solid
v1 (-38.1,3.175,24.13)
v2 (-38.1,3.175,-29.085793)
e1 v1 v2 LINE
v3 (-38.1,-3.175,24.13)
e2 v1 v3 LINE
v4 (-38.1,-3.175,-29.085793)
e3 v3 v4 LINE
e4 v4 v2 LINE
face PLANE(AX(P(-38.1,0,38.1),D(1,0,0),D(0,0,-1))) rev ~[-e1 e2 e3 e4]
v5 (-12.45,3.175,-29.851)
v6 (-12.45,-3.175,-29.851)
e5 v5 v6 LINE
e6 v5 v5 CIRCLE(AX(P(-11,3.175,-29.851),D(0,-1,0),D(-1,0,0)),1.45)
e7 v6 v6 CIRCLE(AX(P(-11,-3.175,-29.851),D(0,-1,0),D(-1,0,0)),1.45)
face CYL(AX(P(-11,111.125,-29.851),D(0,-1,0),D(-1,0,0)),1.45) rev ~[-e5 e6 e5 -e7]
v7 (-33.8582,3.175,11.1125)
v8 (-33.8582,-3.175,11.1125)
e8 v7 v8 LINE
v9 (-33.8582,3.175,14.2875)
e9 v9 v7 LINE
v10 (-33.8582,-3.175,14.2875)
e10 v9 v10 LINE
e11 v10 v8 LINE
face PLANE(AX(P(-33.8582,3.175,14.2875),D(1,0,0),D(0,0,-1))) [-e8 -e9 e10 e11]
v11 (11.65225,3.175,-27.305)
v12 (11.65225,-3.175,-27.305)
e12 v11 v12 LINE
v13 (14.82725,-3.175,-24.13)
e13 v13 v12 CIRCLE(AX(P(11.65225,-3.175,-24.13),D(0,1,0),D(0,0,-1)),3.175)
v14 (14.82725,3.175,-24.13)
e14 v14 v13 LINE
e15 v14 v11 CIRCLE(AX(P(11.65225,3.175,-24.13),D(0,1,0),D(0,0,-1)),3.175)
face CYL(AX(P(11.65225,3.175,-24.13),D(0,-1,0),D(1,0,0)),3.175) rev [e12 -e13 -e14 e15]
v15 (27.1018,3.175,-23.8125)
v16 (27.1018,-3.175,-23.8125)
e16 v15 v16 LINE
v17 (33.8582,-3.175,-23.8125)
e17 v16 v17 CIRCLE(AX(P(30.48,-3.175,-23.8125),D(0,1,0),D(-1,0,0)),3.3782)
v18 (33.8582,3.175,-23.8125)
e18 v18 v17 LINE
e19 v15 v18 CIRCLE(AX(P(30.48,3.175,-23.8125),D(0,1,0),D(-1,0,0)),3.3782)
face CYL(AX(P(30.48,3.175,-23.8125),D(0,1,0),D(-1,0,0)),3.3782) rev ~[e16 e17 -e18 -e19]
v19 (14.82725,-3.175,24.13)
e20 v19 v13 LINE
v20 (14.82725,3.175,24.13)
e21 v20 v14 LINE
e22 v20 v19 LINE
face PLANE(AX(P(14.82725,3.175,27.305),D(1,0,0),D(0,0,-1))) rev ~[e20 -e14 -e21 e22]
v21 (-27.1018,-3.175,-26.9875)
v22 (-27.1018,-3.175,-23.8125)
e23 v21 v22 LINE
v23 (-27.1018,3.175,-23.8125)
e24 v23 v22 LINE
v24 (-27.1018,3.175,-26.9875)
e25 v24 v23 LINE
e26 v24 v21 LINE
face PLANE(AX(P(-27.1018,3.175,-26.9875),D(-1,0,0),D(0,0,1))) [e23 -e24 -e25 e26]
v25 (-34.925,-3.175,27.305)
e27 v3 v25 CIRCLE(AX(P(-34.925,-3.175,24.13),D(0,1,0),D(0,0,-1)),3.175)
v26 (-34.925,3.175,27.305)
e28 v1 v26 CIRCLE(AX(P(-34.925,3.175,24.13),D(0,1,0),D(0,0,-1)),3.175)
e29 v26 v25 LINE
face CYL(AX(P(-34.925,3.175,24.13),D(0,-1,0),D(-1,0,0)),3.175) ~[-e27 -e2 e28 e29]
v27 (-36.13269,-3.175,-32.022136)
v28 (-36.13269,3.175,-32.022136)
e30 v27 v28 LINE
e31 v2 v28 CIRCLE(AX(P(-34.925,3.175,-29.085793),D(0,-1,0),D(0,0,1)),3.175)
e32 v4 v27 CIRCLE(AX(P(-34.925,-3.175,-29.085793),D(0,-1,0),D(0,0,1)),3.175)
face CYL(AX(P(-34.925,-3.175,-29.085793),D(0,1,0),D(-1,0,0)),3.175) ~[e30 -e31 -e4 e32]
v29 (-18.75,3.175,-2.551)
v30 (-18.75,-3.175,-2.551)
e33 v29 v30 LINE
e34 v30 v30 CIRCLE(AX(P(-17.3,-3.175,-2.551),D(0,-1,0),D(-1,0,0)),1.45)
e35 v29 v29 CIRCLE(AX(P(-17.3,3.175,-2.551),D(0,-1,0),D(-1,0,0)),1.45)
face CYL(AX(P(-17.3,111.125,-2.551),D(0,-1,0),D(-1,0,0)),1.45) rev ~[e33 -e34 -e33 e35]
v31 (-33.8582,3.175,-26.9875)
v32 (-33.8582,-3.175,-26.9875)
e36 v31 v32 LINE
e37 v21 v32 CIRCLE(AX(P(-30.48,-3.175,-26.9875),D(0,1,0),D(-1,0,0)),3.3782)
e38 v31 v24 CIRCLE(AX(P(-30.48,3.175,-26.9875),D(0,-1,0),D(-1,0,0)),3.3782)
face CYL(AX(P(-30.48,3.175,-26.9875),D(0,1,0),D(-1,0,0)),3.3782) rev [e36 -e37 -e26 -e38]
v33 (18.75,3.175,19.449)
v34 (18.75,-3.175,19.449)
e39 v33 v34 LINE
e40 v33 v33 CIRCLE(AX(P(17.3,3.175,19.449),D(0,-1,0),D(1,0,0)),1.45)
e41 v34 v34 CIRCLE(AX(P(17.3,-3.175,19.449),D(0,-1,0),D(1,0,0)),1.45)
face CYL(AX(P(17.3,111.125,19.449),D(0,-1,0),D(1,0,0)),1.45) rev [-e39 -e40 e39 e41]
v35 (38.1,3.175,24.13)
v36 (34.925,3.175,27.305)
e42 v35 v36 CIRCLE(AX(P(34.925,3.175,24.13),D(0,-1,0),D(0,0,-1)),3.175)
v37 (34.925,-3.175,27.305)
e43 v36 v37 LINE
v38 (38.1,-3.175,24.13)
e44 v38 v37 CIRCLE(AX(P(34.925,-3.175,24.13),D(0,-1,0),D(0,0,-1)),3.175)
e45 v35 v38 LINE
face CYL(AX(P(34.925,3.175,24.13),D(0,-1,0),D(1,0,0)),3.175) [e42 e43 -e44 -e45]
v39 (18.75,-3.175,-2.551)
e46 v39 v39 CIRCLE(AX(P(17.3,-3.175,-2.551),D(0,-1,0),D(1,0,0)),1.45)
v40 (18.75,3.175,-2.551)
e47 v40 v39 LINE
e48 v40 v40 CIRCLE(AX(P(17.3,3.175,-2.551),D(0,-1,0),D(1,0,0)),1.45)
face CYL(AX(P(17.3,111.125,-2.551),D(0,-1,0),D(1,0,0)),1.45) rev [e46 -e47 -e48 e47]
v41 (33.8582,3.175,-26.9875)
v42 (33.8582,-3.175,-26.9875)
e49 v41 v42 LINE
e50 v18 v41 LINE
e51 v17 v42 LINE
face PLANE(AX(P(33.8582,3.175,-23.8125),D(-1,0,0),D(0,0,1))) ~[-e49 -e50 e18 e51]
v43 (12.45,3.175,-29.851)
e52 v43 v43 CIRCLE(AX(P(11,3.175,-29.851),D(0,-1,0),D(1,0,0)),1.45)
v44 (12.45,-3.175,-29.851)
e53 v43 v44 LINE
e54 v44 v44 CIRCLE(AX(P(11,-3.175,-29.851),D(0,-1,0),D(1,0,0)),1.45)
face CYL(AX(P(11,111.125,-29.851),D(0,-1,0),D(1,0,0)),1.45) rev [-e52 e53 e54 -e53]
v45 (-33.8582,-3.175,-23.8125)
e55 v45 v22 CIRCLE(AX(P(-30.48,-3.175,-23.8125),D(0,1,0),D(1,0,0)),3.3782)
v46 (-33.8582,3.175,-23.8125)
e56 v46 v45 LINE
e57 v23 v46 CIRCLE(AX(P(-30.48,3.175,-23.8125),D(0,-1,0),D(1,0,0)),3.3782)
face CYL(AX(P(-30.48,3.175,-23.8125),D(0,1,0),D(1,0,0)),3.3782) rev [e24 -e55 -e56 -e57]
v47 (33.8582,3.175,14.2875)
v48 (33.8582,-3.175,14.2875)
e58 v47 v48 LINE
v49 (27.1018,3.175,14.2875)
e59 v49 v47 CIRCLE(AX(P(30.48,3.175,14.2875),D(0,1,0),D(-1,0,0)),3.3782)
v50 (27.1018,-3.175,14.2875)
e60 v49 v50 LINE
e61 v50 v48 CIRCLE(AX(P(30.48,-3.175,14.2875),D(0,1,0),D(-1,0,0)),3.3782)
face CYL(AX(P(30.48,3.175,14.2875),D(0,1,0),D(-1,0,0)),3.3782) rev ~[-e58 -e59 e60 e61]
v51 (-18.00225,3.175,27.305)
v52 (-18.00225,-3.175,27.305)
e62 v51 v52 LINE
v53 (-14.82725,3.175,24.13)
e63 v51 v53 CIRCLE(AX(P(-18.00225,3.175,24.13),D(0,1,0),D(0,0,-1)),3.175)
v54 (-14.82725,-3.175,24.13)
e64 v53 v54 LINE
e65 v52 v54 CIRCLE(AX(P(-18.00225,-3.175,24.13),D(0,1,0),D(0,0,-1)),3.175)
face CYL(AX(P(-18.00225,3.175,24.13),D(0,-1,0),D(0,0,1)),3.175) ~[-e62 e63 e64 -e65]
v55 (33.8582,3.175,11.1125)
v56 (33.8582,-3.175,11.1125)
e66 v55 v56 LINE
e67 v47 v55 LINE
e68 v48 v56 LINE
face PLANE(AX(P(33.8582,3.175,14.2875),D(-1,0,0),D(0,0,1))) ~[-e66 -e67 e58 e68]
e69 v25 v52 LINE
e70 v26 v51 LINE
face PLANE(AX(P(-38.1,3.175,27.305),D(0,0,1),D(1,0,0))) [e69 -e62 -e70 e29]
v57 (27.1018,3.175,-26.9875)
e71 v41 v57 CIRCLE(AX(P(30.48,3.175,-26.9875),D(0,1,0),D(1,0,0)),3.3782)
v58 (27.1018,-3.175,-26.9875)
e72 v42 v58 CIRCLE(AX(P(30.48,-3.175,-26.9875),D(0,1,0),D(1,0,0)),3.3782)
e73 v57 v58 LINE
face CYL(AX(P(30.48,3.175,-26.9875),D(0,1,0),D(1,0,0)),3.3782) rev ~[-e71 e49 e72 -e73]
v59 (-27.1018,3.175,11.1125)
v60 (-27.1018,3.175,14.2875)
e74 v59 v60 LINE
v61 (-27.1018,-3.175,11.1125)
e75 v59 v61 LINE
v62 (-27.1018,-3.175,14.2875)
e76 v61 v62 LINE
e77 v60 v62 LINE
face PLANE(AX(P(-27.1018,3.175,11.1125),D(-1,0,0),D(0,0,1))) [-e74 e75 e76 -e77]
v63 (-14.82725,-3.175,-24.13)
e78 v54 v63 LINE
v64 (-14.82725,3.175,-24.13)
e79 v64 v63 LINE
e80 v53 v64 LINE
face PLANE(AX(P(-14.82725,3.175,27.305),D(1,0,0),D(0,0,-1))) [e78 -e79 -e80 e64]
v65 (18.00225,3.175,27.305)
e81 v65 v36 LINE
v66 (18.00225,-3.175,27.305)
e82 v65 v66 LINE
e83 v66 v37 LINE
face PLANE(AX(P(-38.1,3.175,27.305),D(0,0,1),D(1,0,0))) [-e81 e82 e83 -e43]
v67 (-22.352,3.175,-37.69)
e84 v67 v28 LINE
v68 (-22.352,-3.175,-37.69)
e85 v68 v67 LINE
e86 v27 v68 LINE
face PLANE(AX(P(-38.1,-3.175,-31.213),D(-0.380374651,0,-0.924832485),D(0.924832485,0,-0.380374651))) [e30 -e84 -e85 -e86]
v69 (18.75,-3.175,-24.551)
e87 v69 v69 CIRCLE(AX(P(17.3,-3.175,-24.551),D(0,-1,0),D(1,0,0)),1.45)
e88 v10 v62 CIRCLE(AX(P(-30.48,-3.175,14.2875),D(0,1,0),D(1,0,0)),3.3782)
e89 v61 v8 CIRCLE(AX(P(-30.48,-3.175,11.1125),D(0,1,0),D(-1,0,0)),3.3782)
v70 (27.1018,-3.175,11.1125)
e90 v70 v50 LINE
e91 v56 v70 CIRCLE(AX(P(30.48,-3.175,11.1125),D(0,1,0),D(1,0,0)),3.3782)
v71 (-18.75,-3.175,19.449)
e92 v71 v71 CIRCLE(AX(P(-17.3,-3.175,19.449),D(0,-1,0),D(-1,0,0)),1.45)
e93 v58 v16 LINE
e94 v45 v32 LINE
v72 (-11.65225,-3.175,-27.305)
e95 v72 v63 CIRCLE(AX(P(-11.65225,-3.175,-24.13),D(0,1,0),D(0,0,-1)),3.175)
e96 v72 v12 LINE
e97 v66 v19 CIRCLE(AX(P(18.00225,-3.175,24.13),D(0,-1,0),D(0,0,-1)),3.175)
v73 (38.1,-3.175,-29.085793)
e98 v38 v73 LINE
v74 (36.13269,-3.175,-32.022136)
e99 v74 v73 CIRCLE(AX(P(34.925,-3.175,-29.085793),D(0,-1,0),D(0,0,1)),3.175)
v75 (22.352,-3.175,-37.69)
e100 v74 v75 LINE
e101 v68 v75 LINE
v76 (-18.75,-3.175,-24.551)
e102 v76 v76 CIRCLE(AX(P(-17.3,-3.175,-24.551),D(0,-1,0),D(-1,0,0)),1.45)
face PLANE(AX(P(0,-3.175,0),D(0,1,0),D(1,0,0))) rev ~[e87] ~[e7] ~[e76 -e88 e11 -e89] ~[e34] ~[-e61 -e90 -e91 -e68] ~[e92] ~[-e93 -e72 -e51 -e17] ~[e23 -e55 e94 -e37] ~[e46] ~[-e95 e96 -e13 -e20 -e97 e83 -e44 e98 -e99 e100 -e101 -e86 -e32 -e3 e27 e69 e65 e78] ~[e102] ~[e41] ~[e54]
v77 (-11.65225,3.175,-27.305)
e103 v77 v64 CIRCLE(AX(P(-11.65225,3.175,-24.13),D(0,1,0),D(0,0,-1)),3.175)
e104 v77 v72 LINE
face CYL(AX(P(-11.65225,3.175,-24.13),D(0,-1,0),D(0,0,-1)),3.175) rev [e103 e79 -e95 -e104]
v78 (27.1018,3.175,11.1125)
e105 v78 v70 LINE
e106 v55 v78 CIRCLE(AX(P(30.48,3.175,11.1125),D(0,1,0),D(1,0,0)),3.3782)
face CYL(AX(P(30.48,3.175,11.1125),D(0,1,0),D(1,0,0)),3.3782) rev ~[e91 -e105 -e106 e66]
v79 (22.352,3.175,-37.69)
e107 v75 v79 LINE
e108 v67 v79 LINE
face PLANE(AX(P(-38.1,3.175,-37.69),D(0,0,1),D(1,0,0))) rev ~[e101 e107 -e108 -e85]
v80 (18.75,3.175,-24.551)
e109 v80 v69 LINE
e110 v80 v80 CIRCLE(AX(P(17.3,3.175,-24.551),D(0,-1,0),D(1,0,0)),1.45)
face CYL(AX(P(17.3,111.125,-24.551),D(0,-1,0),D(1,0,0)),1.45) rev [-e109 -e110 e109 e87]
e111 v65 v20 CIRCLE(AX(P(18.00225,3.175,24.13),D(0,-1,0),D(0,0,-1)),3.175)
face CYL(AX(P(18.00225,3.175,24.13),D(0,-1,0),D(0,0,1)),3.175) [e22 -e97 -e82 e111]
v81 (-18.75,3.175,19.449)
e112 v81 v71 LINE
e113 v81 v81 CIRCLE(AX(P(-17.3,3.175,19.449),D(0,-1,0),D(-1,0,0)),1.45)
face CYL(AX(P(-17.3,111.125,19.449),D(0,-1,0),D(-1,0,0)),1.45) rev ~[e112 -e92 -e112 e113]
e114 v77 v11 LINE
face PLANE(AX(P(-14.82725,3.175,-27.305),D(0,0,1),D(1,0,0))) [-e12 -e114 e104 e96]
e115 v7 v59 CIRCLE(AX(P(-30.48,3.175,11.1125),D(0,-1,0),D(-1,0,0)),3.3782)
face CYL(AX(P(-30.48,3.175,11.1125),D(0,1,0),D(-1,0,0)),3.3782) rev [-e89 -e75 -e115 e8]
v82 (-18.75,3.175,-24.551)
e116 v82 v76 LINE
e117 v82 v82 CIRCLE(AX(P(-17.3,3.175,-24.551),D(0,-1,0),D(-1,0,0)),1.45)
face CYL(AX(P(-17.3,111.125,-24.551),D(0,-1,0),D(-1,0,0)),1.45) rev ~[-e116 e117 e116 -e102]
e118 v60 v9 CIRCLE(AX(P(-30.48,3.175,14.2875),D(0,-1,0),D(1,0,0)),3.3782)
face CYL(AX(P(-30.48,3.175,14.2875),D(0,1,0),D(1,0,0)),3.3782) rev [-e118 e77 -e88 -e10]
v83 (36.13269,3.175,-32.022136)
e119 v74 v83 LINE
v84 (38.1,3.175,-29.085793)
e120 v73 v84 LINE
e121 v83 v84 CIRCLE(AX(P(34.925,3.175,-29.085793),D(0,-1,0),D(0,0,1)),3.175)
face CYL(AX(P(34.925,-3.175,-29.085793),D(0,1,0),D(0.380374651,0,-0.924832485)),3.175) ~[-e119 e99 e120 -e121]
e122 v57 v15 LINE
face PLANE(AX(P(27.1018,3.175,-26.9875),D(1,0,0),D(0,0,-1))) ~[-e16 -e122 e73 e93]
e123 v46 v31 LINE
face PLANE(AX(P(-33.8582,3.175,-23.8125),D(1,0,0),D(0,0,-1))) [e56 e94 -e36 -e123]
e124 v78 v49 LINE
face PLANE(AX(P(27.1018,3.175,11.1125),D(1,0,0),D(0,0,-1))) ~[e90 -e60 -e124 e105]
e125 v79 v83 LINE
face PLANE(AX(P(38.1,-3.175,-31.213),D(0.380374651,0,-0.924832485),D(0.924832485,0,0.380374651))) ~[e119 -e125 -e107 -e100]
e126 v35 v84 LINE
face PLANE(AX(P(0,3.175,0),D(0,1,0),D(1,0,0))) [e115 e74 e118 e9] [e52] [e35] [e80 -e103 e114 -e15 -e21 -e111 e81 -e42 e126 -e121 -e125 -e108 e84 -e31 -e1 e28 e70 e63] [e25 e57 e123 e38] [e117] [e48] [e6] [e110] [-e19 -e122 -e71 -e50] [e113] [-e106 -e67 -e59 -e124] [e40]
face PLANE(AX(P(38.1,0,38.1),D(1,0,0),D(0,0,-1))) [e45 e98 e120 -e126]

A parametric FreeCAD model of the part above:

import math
import FreeCAD as App
import Part
import Sketcher
Q = App.Units.Quantity


def edges_at(feature, points):
    """Names of the edges that pass closest to the given points."""
    edges = feature.Shape.Edges
    near = lambda p: min(range(len(edges)), key=lambda i: edges[i].distToShape(Part.Vertex(*p))[0])
    return sorted({f"Edge{near(p) + 1}" for p in points})


def add_polygon(sketch, points):
    """Adds a closed chain of lines whose ends are joined by coincident constraints."""
    first, n = sketch.GeometryCount, len(points)
    for a, b in zip(points, points[1:] + points[:1]):
        sketch.addGeometry(Part.LineSegment(App.Vector(*a, 0), App.Vector(*b, 0)), False)
    for i in range(n):
        sketch.addConstraint(Sketcher.Constraint("Coincident", first + i, 2, first + (i + 1) % n, 1))

doc = App.newDocument("Part")
body = doc.addObject("PartDesign::Body", "Body")

# Sketch on XZ plane
sketch1 = doc.addObject("Sketcher::SketchObject", "Sketch")
body.addObject(sketch1)
sketch1.AttachmentSupport = (doc.XZ_Plane, [""])
sketch1.MapMode = "FlatFace"
add_polygon(sketch1, [(-38, -38), (-38, 38), (38, 38), (38, -38)])  # lines 0-3
sketch1.addConstraint([
    Sketcher.Constraint("Vertical", 0),
    Sketcher.Constraint("Horizontal", 1),
    Sketcher.Constraint("Vertical", 2),
    Sketcher.Constraint("Horizontal", 3),
    Sketcher.Constraint("Symmetric", 0, 2, 2, 2, -1, 1),
    Sketcher.Constraint("Equal", 3, 0),
    Sketcher.Constraint("DistanceX", 1, 1, 1, 2, Q("3 in")),
])
pad1 = doc.addObject("PartDesign::Pad", "Pad")
body.addObject(pad1)
pad1.Profile = sketch1
pad1.Length = Q("0.25 in")
pad1.Midplane = True

# Sketch on XZ plane
sketch2 = doc.addObject("Sketcher::SketchObject", "Sketch001")
body.addObject(sketch2)
sketch2.AttachmentSupport = (doc.XZ_Plane, [""])
sketch2.MapMode = "FlatFace"
sketch2.AttachmentOffset = App.Placement(App.Vector(0, 0, -0.125 * 25.4), App.Rotation())
add_polygon(sketch2, [(-15, -27), (-15, 27), (15, 27), (15, -27)])  # lines 0-3
sketch2.addConstraint([
    Sketcher.Constraint("Vertical", 0),
    Sketcher.Constraint("Horizontal", 1),
    Sketcher.Constraint("Vertical", 2),
    Sketcher.Constraint("Horizontal", 3),
    Sketcher.Constraint("Symmetric", 0, 2, 2, 2, -1, 1),
    Sketcher.Constraint("DistanceY", 0, 1, 0, 2, Q("2.15 in")),
    Sketcher.Constraint("DistanceX", 1, 1, 1, 2, Q("1.1675 in")),
])
pocket1 = doc.addObject("PartDesign::Pocket", "Pocket")
body.addObject(pocket1)
pocket1.Profile = sketch2
pocket1.Type = "ThroughAll"
pocket1.Reversed = True

# Sketch on XZ plane
sketch3 = doc.addObject("Sketcher::SketchObject", "Sketch002")
body.addObject(sketch3)
sketch3.AttachmentSupport = (doc.XZ_Plane, [""])
sketch3.MapMode = "FlatFace"
sketch3.AttachmentOffset = App.Placement(App.Vector(0, 0, -0.125 * 25.4), App.Rotation())
sketch3.addGeometry([
    Part.Circle(App.Vector(-17.3, -24.6, 0), App.Vector(0, 0, 1), 1.4),
    Part.Circle(App.Vector(-11, -29.9, 0), App.Vector(0, 0, 1), 1.4),
    Part.Circle(App.Vector(-17.3, -2.6, 0), App.Vector(0, 0, 1), 1.4),
    Part.Circle(App.Vector(-17.3, 19.4, 0), App.Vector(0, 0, 1), 1.4),
], False)
sketch3.addConstraint([
    Sketcher.Constraint("Equal", 0, 1),
    Sketcher.Constraint("Equal", 1, 2),
    Sketcher.Constraint("Equal", 2, 3),
    Sketcher.Constraint("Vertical", 0, 3, 2, 3),
    Sketcher.Constraint("Vertical", 2, 3, 3, 3),
    Sketcher.Constraint("Diameter", 0, Q("2.9 mm")),
    Sketcher.Constraint("DistanceX", 0, 3, -1, 1, Q("17.3 mm")),
    Sketcher.Constraint("DistanceY", 0, 3, -1, 1, Q("24.551 mm")),
    Sketcher.Constraint("DistanceX", 1, 3, -1, 1, Q("11 mm")),
    Sketcher.Constraint("DistanceY", 1, 3, -1, 1, Q("29.851 mm")),
    Sketcher.Constraint("DistanceY", 2, 3, -1, 1, Q("2.551 mm")),
    Sketcher.Constraint("DistanceY", -1, 1, 3, 3, Q("19.449 mm")),
])
doc.recompute()
hole = doc.addObject("PartDesign::Hole", "Hole")
body.addObject(hole)
hole.Profile = sketch3
hole.ThreadType = "None"
hole.Diameter = 2.9
hole.DepthType = "ThroughAll"
hole.Reversed = True

# Sketch on XZ plane
sketch4 = doc.addObject("Sketcher::SketchObject", "Sketch003")
body.addObject(sketch4)
sketch4.AttachmentSupport = (doc.XZ_Plane, [""])
sketch4.MapMode = "FlatFace"
sketch4.AttachmentOffset = App.Placement(App.Vector(0, 0, -0.125 * 25.4), App.Rotation())
sketch4.addGeometry([
    Part.LineSegment(App.Vector(-33.9, 11.1, 0), App.Vector(-33.9, 14.3, 0)),  # 0
    Part.ArcOfCircle(Part.Circle(App.Vector(-30.5, 14.3, 0), App.Vector(0, 0, 1), 3.4), math.radians(0), math.radians(180)),  # 1
    Part.LineSegment(App.Vector(-27.1, 14.3, 0), App.Vector(-27.1, 11.1, 0)),  # 2
    Part.ArcOfCircle(Part.Circle(App.Vector(-30.5, 11.1, 0), App.Vector(0, 0, 1), 3.4), math.radians(180), math.radians(360)),  # 3
    Part.LineSegment(App.Vector(-33.9, -27, 0), App.Vector(-33.9, -23.8, 0)),  # 4
    Part.ArcOfCircle(Part.Circle(App.Vector(-30.5, -23.8, 0), App.Vector(0, 0, 1), 3.4), math.radians(0), math.radians(180)),  # 5
    Part.LineSegment(App.Vector(-27.1, -23.8, 0), App.Vector(-27.1, -27, 0)),  # 6
    Part.ArcOfCircle(Part.Circle(App.Vector(-30.5, -27, 0), App.Vector(0, 0, 1), 3.4), math.radians(180), math.radians(360)),  # 7
], False)
sketch4.addConstraint([
    Sketcher.Constraint("Tangent", 0, 2, 1, 2),
    Sketcher.Constraint("Tangent", 1, 1, 2, 1),
    Sketcher.Constraint("Tangent", 2, 2, 3, 2),
    Sketcher.Constraint("Tangent", 3, 1, 0, 1),
    Sketcher.Constraint("Tangent", 4, 2, 5, 2),
    Sketcher.Constraint("Tangent", 5, 1, 6, 1),
    Sketcher.Constraint("Tangent", 6, 2, 7, 2),
    Sketcher.Constraint("Tangent", 7, 1, 4, 1),
    Sketcher.Constraint("Vertical", 0),
    Sketcher.Constraint("Vertical", 2),
    Sketcher.Constraint("Vertical", 4),
    Sketcher.Constraint("Vertical", 6),
    Sketcher.Constraint("Equal", 3, 5),
    Sketcher.Constraint("Vertical", 3, 3, 5, 3),
    Sketcher.Constraint("Equal", 2, 4),
    Sketcher.Constraint("Radius", 1, Q("0.133 in")),
    Sketcher.Constraint("DistanceX", 1, 3, -1, 1, Q("1.2 in")),
    Sketcher.Constraint("DistanceY", 5, 3, 1, 3, Q("1.5 in")),
    Sketcher.Constraint("DistanceY", 0, 1, 0, 2, Q("0.125 in")),
    Sketcher.Constraint("DistanceY", -1, 1, 1, 3, Q("0.5625 in")),
])
pocket2 = doc.addObject("PartDesign::Pocket", "Pocket001")
body.addObject(pocket2)
pocket2.Profile = sketch4
pocket2.Type = "ThroughAll"
pocket2.Reversed = True
doc.recompute()

mirrored = doc.addObject("PartDesign::Mirrored", "Mirrored")
body.addObject(mirrored)
mirrored.Originals = [hole, pocket2]
mirrored.MirrorPlane = (doc.YZ_Plane, [""])
body.Tip = mirrored

# Sketch on XZ plane
sketch5 = doc.addObject("Sketcher::SketchObject", "Sketch004")
body.addObject(sketch5)
sketch5.AttachmentSupport = (doc.XZ_Plane, [""])
sketch5.MapMode = "FlatFace"
sketch5.AttachmentOffset = App.Placement(App.Vector(0, 0, -0.125 * 25.4), App.Rotation())
add_polygon(sketch5, [(-38.1, 27.3), (-38.1, 38.1), (38.1, 38.1), (38.1, 27.3)])  # lines 0-3
add_polygon(sketch5, [(-38.1, -38.1), (-38.1, -37.69), (38.1, -37.69), (38.1, -38.1)])  # lines 4-7
sketch5.addConstraint([
    Sketcher.Constraint("Vertical", 0),
    Sketcher.Constraint("Horizontal", 1),
    Sketcher.Constraint("Vertical", 2),
    Sketcher.Constraint("Horizontal", 3),
    Sketcher.Constraint("Vertical", 4),
    Sketcher.Constraint("Horizontal", 5),
    Sketcher.Constraint("Vertical", 6),
    Sketcher.Constraint("Horizontal", 7),
    Sketcher.Constraint("Symmetric", 0, 2, 6, 2, -1, 1),
    Sketcher.Constraint("Vertical", 3, 2, 4, 2),
    Sketcher.Constraint("Vertical", 2, 2, 5, 2),
    Sketcher.Constraint("DistanceX", 1, 1, 1, 2, Q("3 in")),
    Sketcher.Constraint("DistanceY", 6, 2, 1, 2, Q("3 in")),
    Sketcher.Constraint("DistanceY", 0, 1, 0, 2, Q("0.425 in")),
    Sketcher.Constraint("DistanceY", 4, 1, 4, 2, Q("0.41 mm")),
])
pocket3 = doc.addObject("PartDesign::Pocket", "Pocket002")
body.addObject(pocket3)
pocket3.Profile = sketch5
pocket3.Type = "ThroughAll"
pocket3.Reversed = True

# Sketch on XZ plane
sketch6 = doc.addObject("Sketcher::SketchObject", "Sketch005")
body.addObject(sketch6)
sketch6.AttachmentSupport = (doc.XZ_Plane, [""])
sketch6.MapMode = "FlatFace"
sketch6.AttachmentOffset = App.Placement(App.Vector(0, 0, 0.125 * 25.4), App.Rotation())
add_polygon(sketch6, [(-22, -38), (-38, -31), (-38, -38)])  # lines 0-2
sketch6.addConstraint([
    Sketcher.Constraint("Vertical", 1),
    Sketcher.Constraint("Horizontal", 2),
    Sketcher.Constraint("DistanceX", 2, 1, 2, 2, Q("0.62 in")),
    Sketcher.Constraint("DistanceX", 0, 2, -1, 1, Q("1.5 in")),
    Sketcher.Constraint("DistanceY", 1, 2, 1, 1, Q("0.255 in")),
    Sketcher.Constraint("DistanceY", 0, 2, -1, 1, Q("31.213 mm")),
])
pocket4 = doc.addObject("PartDesign::Pocket", "Pocket003")
body.addObject(pocket4)
pocket4.Profile = sketch6
pocket4.Type = "ThroughAll"
doc.recompute()

mirrored2 = doc.addObject("PartDesign::Mirrored", "Mirrored001")
body.addObject(mirrored2)
mirrored2.Originals = [pocket4]
mirrored2.MirrorPlane = (doc.YZ_Plane, [""])
body.Tip = mirrored2
doc.recompute()

fillet = doc.addObject("PartDesign::Fillet", "Fillet")
body.addObject(fillet)
fillet.Base = (mirrored2, edges_at(mirrored2, [
    (-38.1, 0, 27.305),
    (38.1, 0, 27.305),
    (-38.1, 0, -31.213),
    (14.827, 0, -27.305),
    (38.1, 0, -31.213),
    (14.827, 0, 27.305),
    (-14.827, 0, 27.305),
    (-14.827, 0, -27.305),
]))
fillet.Radius = Q("0.125 in")

doc.recompute()
